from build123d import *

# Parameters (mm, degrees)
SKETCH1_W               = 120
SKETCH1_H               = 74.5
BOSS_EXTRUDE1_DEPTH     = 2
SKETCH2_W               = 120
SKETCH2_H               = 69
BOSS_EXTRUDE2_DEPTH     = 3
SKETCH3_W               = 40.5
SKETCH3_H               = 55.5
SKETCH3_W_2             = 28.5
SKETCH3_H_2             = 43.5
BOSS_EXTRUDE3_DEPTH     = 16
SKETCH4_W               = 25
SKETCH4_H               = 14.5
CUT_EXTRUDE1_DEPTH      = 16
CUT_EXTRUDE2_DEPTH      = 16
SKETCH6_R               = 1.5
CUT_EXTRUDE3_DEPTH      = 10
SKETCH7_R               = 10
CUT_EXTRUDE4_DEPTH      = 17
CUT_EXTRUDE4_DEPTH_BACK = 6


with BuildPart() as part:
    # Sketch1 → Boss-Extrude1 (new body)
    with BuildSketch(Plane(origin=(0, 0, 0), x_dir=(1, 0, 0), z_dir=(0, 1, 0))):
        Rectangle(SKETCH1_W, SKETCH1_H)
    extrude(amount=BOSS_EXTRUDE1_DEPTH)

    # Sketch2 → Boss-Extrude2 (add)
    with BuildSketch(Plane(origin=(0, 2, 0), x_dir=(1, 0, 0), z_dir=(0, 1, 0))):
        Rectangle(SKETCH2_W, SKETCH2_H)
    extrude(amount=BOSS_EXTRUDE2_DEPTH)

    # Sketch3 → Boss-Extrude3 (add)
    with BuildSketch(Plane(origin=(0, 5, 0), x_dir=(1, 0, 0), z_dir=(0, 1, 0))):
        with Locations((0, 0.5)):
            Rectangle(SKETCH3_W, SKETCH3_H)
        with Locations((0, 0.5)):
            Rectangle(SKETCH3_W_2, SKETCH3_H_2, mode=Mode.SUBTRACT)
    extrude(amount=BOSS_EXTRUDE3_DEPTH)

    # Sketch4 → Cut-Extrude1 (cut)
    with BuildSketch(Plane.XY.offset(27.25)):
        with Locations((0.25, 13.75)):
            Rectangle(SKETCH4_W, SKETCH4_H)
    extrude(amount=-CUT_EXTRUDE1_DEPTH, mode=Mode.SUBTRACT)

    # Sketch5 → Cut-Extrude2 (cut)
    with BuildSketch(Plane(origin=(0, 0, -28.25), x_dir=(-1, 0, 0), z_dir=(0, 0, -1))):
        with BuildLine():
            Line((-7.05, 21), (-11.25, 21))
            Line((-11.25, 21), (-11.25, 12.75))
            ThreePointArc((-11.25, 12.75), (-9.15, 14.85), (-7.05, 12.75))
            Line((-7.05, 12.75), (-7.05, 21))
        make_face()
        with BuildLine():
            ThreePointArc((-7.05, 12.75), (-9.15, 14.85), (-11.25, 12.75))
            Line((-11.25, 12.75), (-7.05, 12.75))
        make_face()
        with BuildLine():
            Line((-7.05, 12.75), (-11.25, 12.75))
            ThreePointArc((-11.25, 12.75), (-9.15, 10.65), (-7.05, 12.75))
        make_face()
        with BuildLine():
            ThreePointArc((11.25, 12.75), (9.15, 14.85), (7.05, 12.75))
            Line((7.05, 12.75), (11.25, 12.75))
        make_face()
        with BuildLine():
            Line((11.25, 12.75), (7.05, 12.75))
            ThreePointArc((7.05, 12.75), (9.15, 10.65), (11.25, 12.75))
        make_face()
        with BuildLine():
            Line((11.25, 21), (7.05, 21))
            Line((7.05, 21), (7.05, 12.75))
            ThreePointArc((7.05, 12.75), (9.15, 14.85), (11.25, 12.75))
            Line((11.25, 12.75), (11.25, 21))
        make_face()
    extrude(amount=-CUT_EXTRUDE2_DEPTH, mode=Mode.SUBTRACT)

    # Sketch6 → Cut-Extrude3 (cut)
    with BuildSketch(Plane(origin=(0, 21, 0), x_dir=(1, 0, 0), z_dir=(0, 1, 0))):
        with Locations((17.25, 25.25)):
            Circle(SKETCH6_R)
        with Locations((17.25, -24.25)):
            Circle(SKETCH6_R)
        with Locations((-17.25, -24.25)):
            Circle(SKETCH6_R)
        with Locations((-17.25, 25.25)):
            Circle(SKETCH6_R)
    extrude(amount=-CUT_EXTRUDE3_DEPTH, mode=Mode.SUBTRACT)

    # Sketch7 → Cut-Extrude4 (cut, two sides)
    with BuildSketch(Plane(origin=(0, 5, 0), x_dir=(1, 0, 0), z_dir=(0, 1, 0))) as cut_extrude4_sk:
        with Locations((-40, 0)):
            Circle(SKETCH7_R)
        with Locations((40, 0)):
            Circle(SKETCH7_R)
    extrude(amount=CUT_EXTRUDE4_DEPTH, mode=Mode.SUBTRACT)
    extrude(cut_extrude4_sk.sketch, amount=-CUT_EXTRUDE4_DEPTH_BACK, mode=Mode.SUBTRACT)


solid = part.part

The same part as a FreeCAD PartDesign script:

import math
import FreeCAD as App
import Part
import Sketcher
from FreeCAD import Vector


def add_polygon(sketch, points):
    """Adds a closed chain of lines whose ends are joined by coincident constraints."""
    first, n = sketch.GeometryCount, len(points)
    for a, b in zip(points, points[1:] + points[:1]):
        sketch.addGeometry(Part.LineSegment(App.Vector(*a, 0), App.Vector(*b, 0)), False)
    for i in range(n):
        sketch.addConstraint(Sketcher.Constraint("Coincident", first + i, 2, first + (i + 1) % n, 1))

doc = App.newDocument("Part")
body = doc.addObject("PartDesign::Body", "Body")

# Sketch on XZ plane
sketch1 = body.newObject("Sketcher::SketchObject", "Sketch")
sketch1.AttachmentSupport = (doc.getObject("XZ_Plane"), [""])
sketch1.MapMode = "FlatFace"
add_polygon(sketch1, [(-60, -37), (-60, 37), (60, 37), (60, -37)])  # lines 0-3
sketch1.addConstraint(Sketcher.Constraint("Vertical", 0))
sketch1.addConstraint(Sketcher.Constraint("Horizontal", 1))
sketch1.addConstraint(Sketcher.Constraint("Vertical", 2))
sketch1.addConstraint(Sketcher.Constraint("Horizontal", 3))
sketch1.addConstraint(Sketcher.Constraint("Symmetric", 0, 2, 2, 2, -1, 1))
sketch1.addConstraint(Sketcher.Constraint("DistanceX", 1, 1, 1, 2, 120.0))
sketch1.addConstraint(Sketcher.Constraint("DistanceY", 0, 1, 0, 2, 74.5))
pad1 = body.newObject("PartDesign::Pad", "Pad")
pad1.Profile = sketch1
pad1.Length = 2
pad1.Reversed = True

# Sketch on XZ plane
sketch2 = body.newObject("Sketcher::SketchObject", "Sketch001")
sketch2.AttachmentSupport = (doc.getObject("XZ_Plane"), [""])
sketch2.MapMode = "FlatFace"
sketch2.AttachmentOffset = App.Placement(Vector(0, 0, -2), App.Rotation())
add_polygon(sketch2, [(-60, -34), (-60, 34), (60, 34), (60, -34)])  # lines 0-3
sketch2.addConstraint(Sketcher.Constraint("Vertical", 0))
sketch2.addConstraint(Sketcher.Constraint("Horizontal", 1))
sketch2.addConstraint(Sketcher.Constraint("Vertical", 2))
sketch2.addConstraint(Sketcher.Constraint("Horizontal", 3))
sketch2.addConstraint(Sketcher.Constraint("Symmetric", 0, 2, 2, 2, -1, 1))
sketch2.addConstraint(Sketcher.Constraint("DistanceX", 1, 1, 1, 2, 120.0))
sketch2.addConstraint(Sketcher.Constraint("DistanceY", 0, 1, 0, 2, 69.0))
pad2 = body.newObject("PartDesign::Pad", "Pad001")
pad2.Profile = sketch2
pad2.Length = 3
pad2.Reversed = True

# Sketch on XZ plane
sketch3 = body.newObject("Sketcher::SketchObject", "Sketch002")
sketch3.AttachmentSupport = (doc.getObject("XZ_Plane"), [""])
sketch3.MapMode = "FlatFace"
sketch3.AttachmentOffset = App.Placement(Vector(0, 0, -5), App.Rotation())
add_polygon(sketch3, [(-20, -28), (-20, 27), (20, 27), (20, -28)])  # lines 0-3
add_polygon(sketch3, [(14, 21), (-14, 21), (-14, -22), (14, -22)])  # lines 4-7
sketch3.addConstraint(Sketcher.Constraint("Vertical", 0))
sketch3.addConstraint(Sketcher.Constraint("Horizontal", 1))
sketch3.addConstraint(Sketcher.Constraint("Vertical", 2))
sketch3.addConstraint(Sketcher.Constraint("Horizontal", 3))
sketch3.addConstraint(Sketcher.Constraint("Horizontal", 4))
sketch3.addConstraint(Sketcher.Constraint("Vertical", 5))
sketch3.addConstraint(Sketcher.Constraint("Horizontal", 6))
sketch3.addConstraint(Sketcher.Constraint("Vertical", 7))
sketch3.addConstraint(Sketcher.Constraint("DistanceX", 1, 1, 1, 2, 40.5))
sketch3.addConstraint(Sketcher.Constraint("DistanceX", 4, 2, 4, 1, 28.5))
sketch3.addConstraint(Sketcher.Constraint("DistanceY", 0, 1, 0, 2, 55.5))
sketch3.addConstraint(Sketcher.Constraint("DistanceY", 5, 2, 5, 1, 43.5))
sketch3.addConstraint(Sketcher.Constraint("DistanceX", 0, 2, 4, 2, 6.0))
sketch3.addConstraint(Sketcher.Constraint("DistanceY", 4, 2, 0, 2, 6.0))
sketch3.addConstraint(Sketcher.Constraint("DistanceX", 0, 2, -1, 1, 20.25))
sketch3.addConstraint(Sketcher.Constraint("DistanceY", -1, 1, 0, 2, 27.25))
pad3 = body.newObject("PartDesign::Pad", "Pad002")
pad3.Profile = sketch3
pad3.Length = 16
pad3.Reversed = True

# Sketch on XY plane
sketch4 = body.newObject("Sketcher::SketchObject", "Sketch003")
sketch4.AttachmentSupport = (doc.getObject("XY_Plane"), [""])
sketch4.MapMode = "FlatFace"
sketch4.AttachmentOffset = App.Placement(Vector(0, 0, 27.25), App.Rotation())
add_polygon(sketch4, [(-12, 21), (-12, 6), (13, 6), (13, 21)])  # lines 0-3
sketch4.addConstraint(Sketcher.Constraint("Vertical", 0))
sketch4.addConstraint(Sketcher.Constraint("Horizontal", 1))
sketch4.addConstraint(Sketcher.Constraint("Vertical", 2))
sketch4.addConstraint(Sketcher.Constraint("Horizontal", 3))
sketch4.addConstraint(Sketcher.Constraint("DistanceX", 1, 1, 1, 2, 25.0))
sketch4.addConstraint(Sketcher.Constraint("DistanceY", 0, 2, 0, 1, 14.5))
sketch4.addConstraint(Sketcher.Constraint("DistanceY", -1, 1, 2, 2, 21.0))
sketch4.addConstraint(Sketcher.Constraint("DistanceX", 0, 2, -1, 1, 12.25))
pocket1 = body.newObject("PartDesign::Pocket", "Pocket")
pocket1.Profile = sketch4
pocket1.Length = 16

# Sketch on XY plane
sketch5 = body.newObject("Sketcher::SketchObject", "Sketch004")
sketch5.AttachmentSupport = (doc.getObject("XY_Plane"), [""])
sketch5.MapMode = "FlatFace"
sketch5.AttachmentOffset = App.Placement(Vector(0, 0, -28.25), App.Rotation())
sketch5.addGeometry(Part.LineSegment(Vector(11.2, 21, 0), Vector(11.2, 12.8, 0)), False)
sketch5.addGeometry(Part.ArcOfCircle(Part.Circle(Vector(9.2, 12.8, 0), Vector(0, 0, 1), 2.1), math.radians(180), math.radians(360)), False)
sketch5.addGeometry(Part.LineSegment(Vector(7, 12.8, 0), Vector(7, 21, 0)), False)
sketch5.addGeometry(Part.LineSegment(Vector(7, 21, 0), Vector(11.2, 21, 0)), False)
sketch5.addGeometry(Part.ArcOfCircle(Part.Circle(Vector(-9.2, 12.8, 0), Vector(0, 0, 1), 2.1), math.radians(180), math.radians(360)), False)
sketch5.addGeometry(Part.LineSegment(Vector(-11.2, 12.8, 0), Vector(-11.2, 21, 0)), False)
sketch5.addGeometry(Part.LineSegment(Vector(-11.2, 21, 0), Vector(-7, 21, 0)), False)
sketch5.addGeometry(Part.LineSegment(Vector(-7, 21, 0), Vector(-7, 12.8, 0)), False)
sketch5.addConstraint(Sketcher.Constraint("Tangent", 0, 2, 1, 2))
sketch5.addConstraint(Sketcher.Constraint("Tangent", 1, 1, 2, 1))
sketch5.addConstraint(Sketcher.Constraint("Coincident", 2, 2, 3, 1))
sketch5.addConstraint(Sketcher.Constraint("Coincident", 3, 2, 0, 1))
sketch5.addConstraint(Sketcher.Constraint("Tangent", 4, 1, 5, 1))
sketch5.addConstraint(Sketcher.Constraint("Coincident", 5, 2, 6, 1))
sketch5.addConstraint(Sketcher.Constraint("Coincident", 6, 2, 7, 1))
sketch5.addConstraint(Sketcher.Constraint("Tangent", 7, 2, 4, 2))
sketch5.addConstraint(Sketcher.Constraint("Vertical", 0))
sketch5.addConstraint(Sketcher.Constraint("Vertical", 2))
sketch5.addConstraint(Sketcher.Constraint("Horizontal", 3))
sketch5.addConstraint(Sketcher.Constraint("Vertical", 5))
sketch5.addConstraint(Sketcher.Constraint("Horizontal", 6))
sketch5.addConstraint(Sketcher.Constraint("Vertical", 7))
sketch5.addConstraint(Sketcher.Constraint("Equal", 1, 4))
sketch5.addConstraint(Sketcher.Constraint("Symmetric", 1, 3, 4, 3, -2))
sketch5.addConstraint(Sketcher.Constraint("Horizontal", 3, 2, 5, 2))
sketch5.addConstraint(Sketcher.Constraint("Radius", 1, 2.1))
sketch5.addConstraint(Sketcher.Constraint("DistanceY", -1, 1, 2, 2, 21.0))
sketch5.addConstraint(Sketcher.Constraint("DistanceY", 0, 2, 0, 1, 8.25))
sketch5.addConstraint(Sketcher.Constraint("DistanceX", 4, 3, 1, 3, 18.3))
pocket2 = body.newObject("PartDesign::Pocket", "Pocket001")
pocket2.Profile = sketch5
pocket2.Length = 16
pocket2.Reversed = True

# Sketch on XZ plane
sketch6 = body.newObject("Sketcher::SketchObject", "Sketch005")
sketch6.AttachmentSupport = (doc.getObject("XZ_Plane"), [""])
sketch6.MapMode = "FlatFace"
sketch6.AttachmentOffset = App.Placement(Vector(0, 0, -21), App.Rotation())
sketch6.addGeometry(Part.Circle(Vector(17.2, -25.2, 0), Vector(0, 0, 1), 1.5), False)
sketch6.addGeometry(Part.Circle(Vector(17.2, 24.2, 0), Vector(0, 0, 1), 1.5), False)
sketch6.addGeometry(Part.Circle(Vector(-17.2, 24.2, 0), Vector(0, 0, 1), 1.5), False)
sketch6.addGeometry(Part.Circle(Vector(-17.2, -25.2, 0), Vector(0, 0, 1), 1.5), False)
sketch6.addConstraint(Sketcher.Constraint("Equal", 0, 1))
sketch6.addConstraint(Sketcher.Constraint("Equal", 1, 2))
sketch6.addConstraint(Sketcher.Constraint("Equal", 2, 3))
sketch6.addConstraint(Sketcher.Constraint("Symmetric", 1, 3, 2, 3, -2))
sketch6.addConstraint(Sketcher.Constraint("Symmetric", 0, 3, 3, 3, -2))
sketch6.addConstraint(Sketcher.Constraint("Vertical", 0, 3, 1, 3))
sketch6.addConstraint(Sketcher.Constraint("Diameter", 0, 3.0))
sketch6.addConstraint(Sketcher.Constraint("DistanceY", 0, 3, 1, 3, 49.5))
sketch6.addConstraint(Sketcher.Constraint("DistanceX", 2, 3, 1, 3, 34.5))
sketch6.addConstraint(Sketcher.Constraint("DistanceY", 0, 3, -1, 1, 25.25))
pocket3 = body.newObject("PartDesign::Pocket", "Pocket002")
pocket3.Profile = sketch6
pocket3.Length = 10
pocket3.Reversed = True

# Sketch on XZ plane
sketch7 = body.newObject("Sketcher::SketchObject", "Sketch006")
sketch7.AttachmentSupport = (doc.getObject("XZ_Plane"), [""])
sketch7.MapMode = "FlatFace"
sketch7.AttachmentOffset = App.Placement(Vector(0, 0, -5), App.Rotation())
sketch7.addGeometry(Part.Circle(Vector(-40, 0, 0), Vector(0, 0, 1), 10), False)
sketch7.addGeometry(Part.Circle(Vector(40, 0, 0), Vector(0, 0, 1), 10), False)
sketch7.addConstraint(Sketcher.Constraint("Equal", 0, 1))
sketch7.addConstraint(Sketcher.Constraint("Symmetric", 0, 3, 1, 3, -1, 1))
sketch7.addConstraint(Sketcher.Constraint("PointOnObject", 0, 3, -1))
sketch7.addConstraint(Sketcher.Constraint("Diameter", 0, 20.0))
sketch7.addConstraint(Sketcher.Constraint("DistanceX", 0, 3, -1, 1, 40.0))
pocket4 = body.newObject("PartDesign::Pocket", "Pocket003")
pocket4.Profile = sketch7
pocket4.Type = "ThroughAll"
pocket4.Midplane = True

doc.recompute()
